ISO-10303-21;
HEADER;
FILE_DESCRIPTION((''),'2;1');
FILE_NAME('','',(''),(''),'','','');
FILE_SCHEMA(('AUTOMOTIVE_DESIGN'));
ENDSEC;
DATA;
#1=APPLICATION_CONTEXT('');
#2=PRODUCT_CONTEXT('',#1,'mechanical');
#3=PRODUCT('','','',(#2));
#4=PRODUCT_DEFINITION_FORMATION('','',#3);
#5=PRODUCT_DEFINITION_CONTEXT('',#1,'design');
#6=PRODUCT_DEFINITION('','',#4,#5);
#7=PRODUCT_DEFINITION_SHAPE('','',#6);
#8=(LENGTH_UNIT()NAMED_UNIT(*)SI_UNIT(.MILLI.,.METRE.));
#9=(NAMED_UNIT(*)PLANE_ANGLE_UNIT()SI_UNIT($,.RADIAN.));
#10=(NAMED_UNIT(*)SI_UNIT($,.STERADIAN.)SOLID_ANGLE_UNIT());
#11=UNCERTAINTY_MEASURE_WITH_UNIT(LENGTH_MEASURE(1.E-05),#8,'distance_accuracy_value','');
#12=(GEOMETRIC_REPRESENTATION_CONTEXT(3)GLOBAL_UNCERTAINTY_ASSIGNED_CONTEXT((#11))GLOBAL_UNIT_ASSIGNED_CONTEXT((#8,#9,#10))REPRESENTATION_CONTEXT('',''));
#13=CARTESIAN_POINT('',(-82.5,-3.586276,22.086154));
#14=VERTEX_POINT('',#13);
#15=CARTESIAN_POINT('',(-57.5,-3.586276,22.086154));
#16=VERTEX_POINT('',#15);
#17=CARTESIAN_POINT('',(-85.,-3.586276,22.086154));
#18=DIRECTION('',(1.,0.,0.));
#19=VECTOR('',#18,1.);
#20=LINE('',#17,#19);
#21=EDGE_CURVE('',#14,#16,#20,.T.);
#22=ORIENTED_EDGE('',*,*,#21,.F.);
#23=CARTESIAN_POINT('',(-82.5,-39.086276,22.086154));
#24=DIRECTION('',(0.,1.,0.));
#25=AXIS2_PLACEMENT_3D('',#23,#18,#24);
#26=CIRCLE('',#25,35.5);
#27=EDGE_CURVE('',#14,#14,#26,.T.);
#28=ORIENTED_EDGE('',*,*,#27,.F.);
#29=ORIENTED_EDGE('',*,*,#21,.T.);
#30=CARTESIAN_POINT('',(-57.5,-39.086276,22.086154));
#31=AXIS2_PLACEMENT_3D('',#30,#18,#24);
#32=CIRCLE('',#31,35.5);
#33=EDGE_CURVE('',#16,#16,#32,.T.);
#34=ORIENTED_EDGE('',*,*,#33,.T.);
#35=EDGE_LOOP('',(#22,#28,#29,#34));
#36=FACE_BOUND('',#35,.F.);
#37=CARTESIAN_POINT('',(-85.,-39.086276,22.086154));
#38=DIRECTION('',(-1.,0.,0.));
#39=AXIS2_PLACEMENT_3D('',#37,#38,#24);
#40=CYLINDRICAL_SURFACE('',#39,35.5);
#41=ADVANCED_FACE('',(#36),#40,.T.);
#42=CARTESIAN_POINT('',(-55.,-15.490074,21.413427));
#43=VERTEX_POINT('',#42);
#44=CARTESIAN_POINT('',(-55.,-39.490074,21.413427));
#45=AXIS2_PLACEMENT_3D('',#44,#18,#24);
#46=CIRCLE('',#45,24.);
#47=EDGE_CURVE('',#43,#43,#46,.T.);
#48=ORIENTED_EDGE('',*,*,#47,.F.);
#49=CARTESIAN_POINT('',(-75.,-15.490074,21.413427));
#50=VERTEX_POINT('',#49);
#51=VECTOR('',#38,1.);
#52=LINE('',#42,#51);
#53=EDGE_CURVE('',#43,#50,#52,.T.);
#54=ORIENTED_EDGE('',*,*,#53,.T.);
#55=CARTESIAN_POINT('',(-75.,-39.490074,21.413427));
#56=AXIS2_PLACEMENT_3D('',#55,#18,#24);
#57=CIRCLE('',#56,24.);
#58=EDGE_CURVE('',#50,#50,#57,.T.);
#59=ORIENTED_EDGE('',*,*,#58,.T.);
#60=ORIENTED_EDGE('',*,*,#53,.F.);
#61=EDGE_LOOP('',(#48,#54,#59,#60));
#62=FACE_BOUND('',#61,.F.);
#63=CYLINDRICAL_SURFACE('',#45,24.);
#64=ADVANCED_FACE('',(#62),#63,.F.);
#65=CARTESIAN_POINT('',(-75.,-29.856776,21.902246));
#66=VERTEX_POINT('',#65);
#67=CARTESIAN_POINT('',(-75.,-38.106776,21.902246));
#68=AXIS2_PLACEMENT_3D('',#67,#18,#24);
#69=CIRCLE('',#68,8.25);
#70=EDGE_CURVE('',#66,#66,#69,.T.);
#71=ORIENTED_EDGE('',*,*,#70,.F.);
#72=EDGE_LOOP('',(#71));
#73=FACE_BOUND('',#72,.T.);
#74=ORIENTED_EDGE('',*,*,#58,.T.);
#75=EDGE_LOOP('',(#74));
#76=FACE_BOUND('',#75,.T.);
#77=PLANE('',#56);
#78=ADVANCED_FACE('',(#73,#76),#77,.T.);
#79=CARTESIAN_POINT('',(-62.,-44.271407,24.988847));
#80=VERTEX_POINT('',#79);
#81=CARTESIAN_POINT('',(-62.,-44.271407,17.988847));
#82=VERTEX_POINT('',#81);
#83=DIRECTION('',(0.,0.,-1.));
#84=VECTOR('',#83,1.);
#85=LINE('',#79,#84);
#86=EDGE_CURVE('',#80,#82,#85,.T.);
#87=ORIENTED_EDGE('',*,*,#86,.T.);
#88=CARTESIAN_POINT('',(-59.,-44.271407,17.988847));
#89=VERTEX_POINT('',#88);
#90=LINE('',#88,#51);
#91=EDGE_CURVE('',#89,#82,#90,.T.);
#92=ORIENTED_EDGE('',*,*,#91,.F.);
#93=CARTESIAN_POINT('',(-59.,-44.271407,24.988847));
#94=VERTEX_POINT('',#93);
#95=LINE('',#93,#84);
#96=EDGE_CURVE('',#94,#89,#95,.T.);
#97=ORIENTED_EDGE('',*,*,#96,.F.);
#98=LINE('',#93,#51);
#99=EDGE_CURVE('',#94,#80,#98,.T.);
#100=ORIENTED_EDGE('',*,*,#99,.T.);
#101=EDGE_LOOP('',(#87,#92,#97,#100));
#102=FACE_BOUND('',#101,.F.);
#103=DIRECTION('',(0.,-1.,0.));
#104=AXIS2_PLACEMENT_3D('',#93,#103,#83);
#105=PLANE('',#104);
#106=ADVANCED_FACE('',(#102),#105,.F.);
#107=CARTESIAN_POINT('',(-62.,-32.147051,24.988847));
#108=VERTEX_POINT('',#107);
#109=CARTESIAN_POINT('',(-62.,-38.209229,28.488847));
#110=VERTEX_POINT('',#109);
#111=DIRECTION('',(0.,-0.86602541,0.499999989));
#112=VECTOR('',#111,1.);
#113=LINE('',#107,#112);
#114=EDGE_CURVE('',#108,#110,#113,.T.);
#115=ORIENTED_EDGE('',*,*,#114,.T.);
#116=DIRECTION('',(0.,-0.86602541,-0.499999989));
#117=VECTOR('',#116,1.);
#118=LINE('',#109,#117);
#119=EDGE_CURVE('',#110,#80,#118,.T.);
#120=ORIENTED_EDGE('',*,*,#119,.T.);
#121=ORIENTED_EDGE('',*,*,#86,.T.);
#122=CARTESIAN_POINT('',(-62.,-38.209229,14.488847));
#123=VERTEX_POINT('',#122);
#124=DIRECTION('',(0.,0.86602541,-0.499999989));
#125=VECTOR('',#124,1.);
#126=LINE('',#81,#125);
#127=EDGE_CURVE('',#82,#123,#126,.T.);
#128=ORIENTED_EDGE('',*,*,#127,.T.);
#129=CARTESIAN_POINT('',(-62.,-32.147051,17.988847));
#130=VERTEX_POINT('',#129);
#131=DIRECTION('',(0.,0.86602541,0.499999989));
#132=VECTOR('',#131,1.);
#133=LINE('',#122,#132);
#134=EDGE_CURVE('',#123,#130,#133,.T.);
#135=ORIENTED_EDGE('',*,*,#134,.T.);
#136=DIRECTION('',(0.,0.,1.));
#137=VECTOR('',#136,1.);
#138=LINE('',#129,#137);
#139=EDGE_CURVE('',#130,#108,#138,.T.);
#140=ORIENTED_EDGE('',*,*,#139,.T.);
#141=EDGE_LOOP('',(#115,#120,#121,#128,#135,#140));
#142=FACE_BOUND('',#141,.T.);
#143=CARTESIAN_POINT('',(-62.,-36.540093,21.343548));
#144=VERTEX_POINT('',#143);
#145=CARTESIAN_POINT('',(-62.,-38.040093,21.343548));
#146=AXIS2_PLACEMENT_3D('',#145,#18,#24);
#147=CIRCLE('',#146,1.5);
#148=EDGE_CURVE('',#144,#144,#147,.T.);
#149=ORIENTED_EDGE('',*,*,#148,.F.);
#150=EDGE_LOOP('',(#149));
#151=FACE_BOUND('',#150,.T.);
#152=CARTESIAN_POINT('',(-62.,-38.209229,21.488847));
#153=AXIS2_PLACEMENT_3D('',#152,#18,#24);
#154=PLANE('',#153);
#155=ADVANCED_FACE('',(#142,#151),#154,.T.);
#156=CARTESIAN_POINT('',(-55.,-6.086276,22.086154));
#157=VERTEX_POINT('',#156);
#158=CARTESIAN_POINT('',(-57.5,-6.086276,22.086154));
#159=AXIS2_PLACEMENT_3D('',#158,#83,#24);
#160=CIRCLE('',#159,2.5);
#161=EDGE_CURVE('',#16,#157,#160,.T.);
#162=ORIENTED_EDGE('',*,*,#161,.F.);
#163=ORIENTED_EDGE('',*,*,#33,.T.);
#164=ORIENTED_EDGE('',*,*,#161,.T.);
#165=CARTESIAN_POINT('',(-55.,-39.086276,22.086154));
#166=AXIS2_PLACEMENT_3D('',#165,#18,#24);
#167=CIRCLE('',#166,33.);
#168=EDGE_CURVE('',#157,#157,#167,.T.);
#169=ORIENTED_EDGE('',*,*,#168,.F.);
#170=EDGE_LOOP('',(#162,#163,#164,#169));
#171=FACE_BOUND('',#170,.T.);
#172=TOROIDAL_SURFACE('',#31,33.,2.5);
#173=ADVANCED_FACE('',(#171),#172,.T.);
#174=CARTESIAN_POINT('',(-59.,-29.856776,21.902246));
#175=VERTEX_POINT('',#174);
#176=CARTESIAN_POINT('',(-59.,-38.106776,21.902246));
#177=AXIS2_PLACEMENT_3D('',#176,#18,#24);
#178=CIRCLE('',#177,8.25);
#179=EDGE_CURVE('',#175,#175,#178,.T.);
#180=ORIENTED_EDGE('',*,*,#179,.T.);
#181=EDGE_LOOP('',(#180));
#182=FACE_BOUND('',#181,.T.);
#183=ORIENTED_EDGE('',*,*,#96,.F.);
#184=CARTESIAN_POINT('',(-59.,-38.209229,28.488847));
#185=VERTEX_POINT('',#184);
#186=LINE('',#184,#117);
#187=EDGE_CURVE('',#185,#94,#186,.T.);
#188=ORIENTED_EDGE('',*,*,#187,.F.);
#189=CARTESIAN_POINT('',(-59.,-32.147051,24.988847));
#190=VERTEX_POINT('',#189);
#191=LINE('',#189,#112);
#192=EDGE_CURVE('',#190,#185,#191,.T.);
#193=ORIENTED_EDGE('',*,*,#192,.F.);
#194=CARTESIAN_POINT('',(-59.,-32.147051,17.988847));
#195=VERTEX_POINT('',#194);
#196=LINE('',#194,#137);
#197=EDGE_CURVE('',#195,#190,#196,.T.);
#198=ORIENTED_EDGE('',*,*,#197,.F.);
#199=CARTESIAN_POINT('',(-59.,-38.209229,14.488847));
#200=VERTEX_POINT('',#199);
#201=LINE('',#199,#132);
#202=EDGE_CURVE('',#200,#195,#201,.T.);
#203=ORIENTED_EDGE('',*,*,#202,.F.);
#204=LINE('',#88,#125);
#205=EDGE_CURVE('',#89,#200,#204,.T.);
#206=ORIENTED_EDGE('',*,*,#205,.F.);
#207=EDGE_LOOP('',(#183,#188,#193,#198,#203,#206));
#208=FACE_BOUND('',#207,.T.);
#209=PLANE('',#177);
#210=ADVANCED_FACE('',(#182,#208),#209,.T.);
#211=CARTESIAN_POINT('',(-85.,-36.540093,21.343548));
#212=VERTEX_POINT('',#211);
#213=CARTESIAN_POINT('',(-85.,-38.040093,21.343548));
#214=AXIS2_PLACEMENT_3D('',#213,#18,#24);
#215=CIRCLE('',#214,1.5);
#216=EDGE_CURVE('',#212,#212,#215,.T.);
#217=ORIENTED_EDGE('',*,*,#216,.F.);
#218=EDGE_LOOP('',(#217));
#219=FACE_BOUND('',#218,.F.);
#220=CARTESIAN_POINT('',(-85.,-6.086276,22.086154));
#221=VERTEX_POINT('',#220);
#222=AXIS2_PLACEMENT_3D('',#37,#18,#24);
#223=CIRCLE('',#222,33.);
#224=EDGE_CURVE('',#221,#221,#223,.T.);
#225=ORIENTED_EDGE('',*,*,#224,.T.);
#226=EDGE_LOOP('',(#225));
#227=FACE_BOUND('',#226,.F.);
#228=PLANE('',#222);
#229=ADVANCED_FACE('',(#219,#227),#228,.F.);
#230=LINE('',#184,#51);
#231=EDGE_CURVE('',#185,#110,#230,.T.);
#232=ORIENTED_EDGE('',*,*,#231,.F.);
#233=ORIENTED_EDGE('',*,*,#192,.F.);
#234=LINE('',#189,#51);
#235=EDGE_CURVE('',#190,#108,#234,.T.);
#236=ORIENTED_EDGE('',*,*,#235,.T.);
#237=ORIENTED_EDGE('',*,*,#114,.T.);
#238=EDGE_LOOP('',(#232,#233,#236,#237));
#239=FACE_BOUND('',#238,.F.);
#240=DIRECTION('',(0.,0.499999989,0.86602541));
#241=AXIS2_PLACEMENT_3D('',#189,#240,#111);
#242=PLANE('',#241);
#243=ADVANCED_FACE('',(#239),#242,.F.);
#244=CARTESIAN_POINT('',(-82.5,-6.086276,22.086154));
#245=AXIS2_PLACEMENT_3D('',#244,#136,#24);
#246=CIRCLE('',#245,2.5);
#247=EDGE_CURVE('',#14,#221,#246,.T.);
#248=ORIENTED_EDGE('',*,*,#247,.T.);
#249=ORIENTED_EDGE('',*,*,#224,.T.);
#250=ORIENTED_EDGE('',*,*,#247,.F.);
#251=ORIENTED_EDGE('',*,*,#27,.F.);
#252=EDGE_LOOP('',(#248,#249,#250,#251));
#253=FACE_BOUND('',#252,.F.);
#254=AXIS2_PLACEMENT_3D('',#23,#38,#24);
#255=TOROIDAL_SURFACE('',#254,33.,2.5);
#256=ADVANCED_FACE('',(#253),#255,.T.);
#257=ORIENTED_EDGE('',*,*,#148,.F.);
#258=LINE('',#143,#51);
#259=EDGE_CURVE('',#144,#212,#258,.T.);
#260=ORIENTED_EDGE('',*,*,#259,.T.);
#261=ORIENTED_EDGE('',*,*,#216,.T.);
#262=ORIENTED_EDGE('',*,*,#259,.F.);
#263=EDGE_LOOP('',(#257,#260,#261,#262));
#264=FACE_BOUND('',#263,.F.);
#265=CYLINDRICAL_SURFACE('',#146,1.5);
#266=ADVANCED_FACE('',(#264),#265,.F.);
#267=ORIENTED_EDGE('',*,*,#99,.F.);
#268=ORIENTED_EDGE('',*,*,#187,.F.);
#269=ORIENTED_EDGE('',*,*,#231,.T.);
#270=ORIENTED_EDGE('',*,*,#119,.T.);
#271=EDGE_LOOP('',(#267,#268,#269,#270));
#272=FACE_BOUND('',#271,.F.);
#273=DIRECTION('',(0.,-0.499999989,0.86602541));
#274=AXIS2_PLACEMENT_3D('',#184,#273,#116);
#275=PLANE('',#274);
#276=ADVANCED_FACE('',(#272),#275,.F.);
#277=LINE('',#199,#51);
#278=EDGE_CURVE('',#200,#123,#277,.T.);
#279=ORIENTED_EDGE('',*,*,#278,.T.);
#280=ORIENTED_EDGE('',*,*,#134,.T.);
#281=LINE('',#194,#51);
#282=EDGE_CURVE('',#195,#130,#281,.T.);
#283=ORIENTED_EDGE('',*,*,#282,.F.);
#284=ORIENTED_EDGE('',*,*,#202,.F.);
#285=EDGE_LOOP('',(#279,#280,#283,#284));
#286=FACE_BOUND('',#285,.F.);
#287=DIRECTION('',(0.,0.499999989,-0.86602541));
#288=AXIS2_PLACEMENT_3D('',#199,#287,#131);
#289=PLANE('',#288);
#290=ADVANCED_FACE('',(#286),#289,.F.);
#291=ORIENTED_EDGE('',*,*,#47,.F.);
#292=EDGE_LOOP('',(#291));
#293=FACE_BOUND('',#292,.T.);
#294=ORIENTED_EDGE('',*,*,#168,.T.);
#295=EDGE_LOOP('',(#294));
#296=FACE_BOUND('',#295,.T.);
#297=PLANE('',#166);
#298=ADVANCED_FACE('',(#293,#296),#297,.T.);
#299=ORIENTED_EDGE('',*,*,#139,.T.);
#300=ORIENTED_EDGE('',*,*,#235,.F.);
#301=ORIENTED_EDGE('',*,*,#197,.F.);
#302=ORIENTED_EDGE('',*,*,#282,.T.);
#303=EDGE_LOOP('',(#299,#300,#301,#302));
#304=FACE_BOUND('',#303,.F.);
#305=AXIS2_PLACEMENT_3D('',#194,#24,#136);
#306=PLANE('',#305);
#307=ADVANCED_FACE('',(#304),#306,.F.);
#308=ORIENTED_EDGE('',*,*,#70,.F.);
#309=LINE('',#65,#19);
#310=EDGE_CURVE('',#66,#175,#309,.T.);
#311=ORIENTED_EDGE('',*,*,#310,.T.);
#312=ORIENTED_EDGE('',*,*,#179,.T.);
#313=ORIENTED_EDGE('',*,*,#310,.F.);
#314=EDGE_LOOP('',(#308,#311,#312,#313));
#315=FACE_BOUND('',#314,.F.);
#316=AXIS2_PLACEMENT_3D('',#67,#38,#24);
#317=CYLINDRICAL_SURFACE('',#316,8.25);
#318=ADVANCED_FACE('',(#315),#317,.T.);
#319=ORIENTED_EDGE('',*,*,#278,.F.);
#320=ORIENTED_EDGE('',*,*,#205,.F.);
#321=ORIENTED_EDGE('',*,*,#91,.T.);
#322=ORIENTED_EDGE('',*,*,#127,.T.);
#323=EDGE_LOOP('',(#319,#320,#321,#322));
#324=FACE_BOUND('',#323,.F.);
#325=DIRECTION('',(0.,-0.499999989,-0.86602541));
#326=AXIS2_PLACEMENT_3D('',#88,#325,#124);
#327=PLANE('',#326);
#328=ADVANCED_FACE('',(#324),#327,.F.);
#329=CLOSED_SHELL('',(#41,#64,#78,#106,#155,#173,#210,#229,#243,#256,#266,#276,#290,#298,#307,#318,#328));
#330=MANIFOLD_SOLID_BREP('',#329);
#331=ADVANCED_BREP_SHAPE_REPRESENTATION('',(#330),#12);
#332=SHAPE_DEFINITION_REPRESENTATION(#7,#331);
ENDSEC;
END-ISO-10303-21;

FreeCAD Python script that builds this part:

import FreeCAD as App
import Part
import Sketcher

V = App.Vector
Q = App.Units.Quantity


def edges_at(feature, points):
    """Names of the edges that pass closest to the given points."""
    edges = feature.Shape.Edges
    near = lambda p: min(range(len(edges)), key=lambda i: edges[i].distToShape(Part.Vertex(*p))[0])
    return sorted({f"Edge{near(p) + 1}" for p in points})


def add_polygon(sketch, points):
    """Adds a closed chain of lines whose ends are joined by coincident constraints."""
    first, n = sketch.GeometryCount, len(points)
    for a, b in zip(points, points[1:] + points[:1]):
        sketch.addGeometry(Part.LineSegment(App.Vector(*a, 0), App.Vector(*b, 0)), False)
    for i in range(n):
        sketch.addConstraint(Sketcher.Constraint("Coincident", first + i, 2, first + (i + 1) % n, 1))

doc = App.newDocument("Part")
params = doc.addObject("Spreadsheet::Sheet", "Params")
for row, (alias, value) in enumerate([
    ("sketch1_diameter", "71 mm"),
    ("pad1_length", "30 mm"),
    ("fillet_radius", "2.5 mm"),
    ("fillet2_radius", "2.5 mm"),
    ("sketch2_diameter", "48 mm"),
    ("pocket1_length", "20 mm"),
    ("sketch3_diameter", "16.5 mm"),
    ("pad2_length", "16 mm"),
    ("sketch4_height", "7 mm"),
    ("sketch4_length", "7 mm"),
    ("pocket2_length", "3 mm"),
    ("sketch5_diameter", "3 mm"),
    ("pocket3_length", "25 mm"),
], start=1):
    params.set(f"A{row}", alias)
    params.set(f"B{row}", "=" + value)
    params.setAlias(f"B{row}", alias)

body = doc.addObject("PartDesign::Body", "Body")

# Sketch on YZ plane
sketch1 = body.newObject("Sketcher::SketchObject", "Sketch")
sketch1.AttachmentSupport = (doc.getObject("YZ_Plane"), [""])
sketch1.MapMode = "FlatFace"
sketch1.addGeometry(Part.Circle(V(-2, 2, 0), V(0, 0, 1), 36), False)
sketch1.addConstraint([
    Sketcher.Constraint("Diameter", 0, 71.0),
    Sketcher.Constraint("DistanceX", 0, 3, -1, 1, 2.086276),
    Sketcher.Constraint("DistanceY", -1, 1, 0, 3, 2.086154),
])
sketch1.setExpression("Constraints[0]", "Params.sketch1_diameter")
pad1 = body.newObject("PartDesign::Pad", "Pad")
pad1.Profile = sketch1
pad1.setExpression("Length", "Params.pad1_length")
doc.recompute()

fillet = body.newObject("PartDesign::Fillet", "Fillet")
fillet.Base = (pad1, edges_at(pad1, [(30, -37.586, 2.086)]))
fillet.setExpression("Radius", "Params.fillet_radius")
doc.recompute()

fillet2 = body.newObject("PartDesign::Fillet", "Fillet001")
fillet2.Base = (fillet, edges_at(fillet, [(0, -37.586, 2.086)]))
fillet2.setExpression("Radius", "Params.fillet2_radius")

# Sketch on YZ plane
sketch2 = body.newObject("Sketcher::SketchObject", "Sketch001")
sketch2.AttachmentSupport = (doc.getObject("YZ_Plane"), [""])
sketch2.MapMode = "FlatFace"
sketch2.AttachmentOffset = App.Placement(V(0, 0, 30), App.Rotation())
sketch2.addGeometry(Part.Circle(V(-2, 1, 0), V(0, 0, 1), 24), False)
sketch2.addConstraint([
    Sketcher.Constraint("Diameter", 0, 48.0),
    Sketcher.Constraint("DistanceX", 0, 3, -1, 1, 2.490074),
    Sketcher.Constraint("DistanceY", -1, 1, 0, 3, 1.413427),
])
sketch2.setExpression("Constraints[0]", "Params.sketch2_diameter")
pocket1 = body.newObject("PartDesign::Pocket", "Pocket")
pocket1.Profile = sketch2
pocket1.setExpression("Length", "Params.pocket1_length")

# Sketch on YZ plane
sketch3 = body.newObject("Sketcher::SketchObject", "Sketch002")
sketch3.AttachmentSupport = (doc.getObject("YZ_Plane"), [""])
sketch3.MapMode = "FlatFace"
sketch3.AttachmentOffset = App.Placement(V(0, 0, 10), App.Rotation())
sketch3.addGeometry(Part.Circle(V(-1, 2, 0), V(0, 0, 1), 8), False)
sketch3.addConstraint([
    Sketcher.Constraint("Diameter", 0, 16.5),
    Sketcher.Constraint("DistanceX", 0, 3, -1, 1, 1.106776),
    Sketcher.Constraint("DistanceY", -1, 1, 0, 3, 1.902246),
])
sketch3.setExpression("Constraints[0]", "Params.sketch3_diameter")
pad2 = body.newObject("PartDesign::Pad", "Pad001")
pad2.Profile = sketch3
pad2.setExpression("Length", "Params.pad2_length")

# Sketch on YZ plane
sketch4 = body.newObject("Sketcher::SketchObject", "Sketch003")
sketch4.AttachmentSupport = (doc.getObject("YZ_Plane"), [""])
sketch4.MapMode = "FlatFace"
sketch4.AttachmentOffset = App.Placement(V(0, 0, 26), App.Rotation())
add_polygon(sketch4, [(5, 5), (-1, 8), (-7, 5), (-7, -2), (-1, -6), (5, -2)])  # lines 0-5
sketch4.addConstraint([
    Sketcher.Constraint("Vertical", 2),
    Sketcher.Constraint("Vertical", 5),
    Sketcher.Constraint("Parallel", 0, 3),
    Sketcher.Constraint("Parallel", 1, 4),
    Sketcher.Constraint("Horizontal", 2, 2, 4, 2),
    Sketcher.Constraint("Horizontal", 1, 2, 5, 2),
    Sketcher.Constraint("Vertical", 0, 2, 3, 2),
    Sketcher.Constraint("DistanceY", 2, 2, 2, 1, 7.0),
    Sketcher.Constraint("Angle", 0, Q("150.000001 deg")),
    Sketcher.Constraint("Distance", 0, 7.0),
    Sketcher.Constraint("DistanceX", 0, 2, -1, 1, 1.209229),
    Sketcher.Constraint("DistanceY", -1, 1, 0, 2, 8.488847),
])
sketch4.setExpression("Constraints[13]", "Params.sketch4_height")
sketch4.setExpression("Constraints[15]", "Params.sketch4_length")
pocket2 = body.newObject("PartDesign::Pocket", "Pocket001")
pocket2.Profile = sketch4
pocket2.setExpression("Length", "Params.pocket2_length")

# Sketch on YZ plane
sketch5 = body.newObject("Sketcher::SketchObject", "Sketch004")
sketch5.AttachmentSupport = (doc.getObject("YZ_Plane"), [""])
sketch5.MapMode = "FlatFace"
sketch5.AttachmentOffset = App.Placement(V(0, 0, 23), App.Rotation())
sketch5.addGeometry(Part.Circle(V(-1, 1.3, 0), V(0, 0, 1), 1.5), False)
sketch5.addConstraint([
    Sketcher.Constraint("Diameter", 0, 3.0),
    Sketcher.Constraint("DistanceX", 0, 3, -1, 1, 1.040093),
    Sketcher.Constraint("DistanceY", -1, 1, 0, 3, 1.343548),
])
sketch5.setExpression("Constraints[0]", "Params.sketch5_diameter")
pocket3 = body.newObject("PartDesign::Pocket", "Pocket002")
pocket3.Profile = sketch5
pocket3.setExpression("Length", "Params.pocket3_length")
body2 = doc.addObject("PartDesign::Body", "Body001")
doc.recompute()

body.Placement = App.Placement(V(-85, -37, 20), App.Rotation(V(0, 0, 1), 0))
boolean = body2.newObject("PartDesign::Boolean", "Boolean")
boolean.Type = "Fuse"
boolean.addObjects([body])

doc.recompute()
